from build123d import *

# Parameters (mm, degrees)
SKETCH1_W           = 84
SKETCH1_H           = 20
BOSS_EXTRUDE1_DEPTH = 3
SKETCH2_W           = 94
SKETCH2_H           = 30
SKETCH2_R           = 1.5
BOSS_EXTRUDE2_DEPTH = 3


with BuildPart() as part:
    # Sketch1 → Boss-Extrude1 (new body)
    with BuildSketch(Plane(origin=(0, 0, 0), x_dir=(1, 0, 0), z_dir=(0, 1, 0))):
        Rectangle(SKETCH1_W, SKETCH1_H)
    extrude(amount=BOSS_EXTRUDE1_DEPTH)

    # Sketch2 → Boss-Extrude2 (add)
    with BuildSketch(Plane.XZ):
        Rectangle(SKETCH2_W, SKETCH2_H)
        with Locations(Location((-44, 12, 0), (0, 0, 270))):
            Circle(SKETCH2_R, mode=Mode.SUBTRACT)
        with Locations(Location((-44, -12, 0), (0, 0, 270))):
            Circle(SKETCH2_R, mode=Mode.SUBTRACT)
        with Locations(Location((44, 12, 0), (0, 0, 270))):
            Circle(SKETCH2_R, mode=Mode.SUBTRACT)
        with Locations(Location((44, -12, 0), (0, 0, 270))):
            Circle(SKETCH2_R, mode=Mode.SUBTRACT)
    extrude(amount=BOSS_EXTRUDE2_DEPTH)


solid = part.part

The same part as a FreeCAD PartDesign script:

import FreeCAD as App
import Part
import Sketcher
from FreeCAD import Vector
Q = App.Units.Quantity

doc = App.newDocument("Part")
body = doc.addObject("PartDesign::Body", "Body")

sketch1 = body.newObject("Sketcher::SketchObject", "Sketch")
sketch1.AttachmentSupport = (doc.getObject("XZ_Plane"), [""])
sketch1.MapMode = "FlatFace"
sketch1.addGeometry(Part.LineSegment(Vector(-42, -10, 0), Vector(-42, 10, 0)), False)
sketch1.addGeometry(Part.LineSegment(Vector(-42, 10, 0), Vector(42, 10, 0)), False)
sketch1.addGeometry(Part.LineSegment(Vector(42, 10, 0), Vector(42, -10, 0)), False)
sketch1.addGeometry(Part.LineSegment(Vector(42, -10, 0), Vector(-42, -10, 0)), False)
sketch1.addConstraint(Sketcher.Constraint("Coincident", 0, 2, 1, 1))
sketch1.addConstraint(Sketcher.Constraint("Coincident", 1, 2, 2, 1))
sketch1.addConstraint(Sketcher.Constraint("Coincident", 2, 2, 3, 1))
sketch1.addConstraint(Sketcher.Constraint("Coincident", 3, 2, 0, 1))
sketch1.addConstraint(Sketcher.Constraint("Vertical", 0))
sketch1.addConstraint(Sketcher.Constraint("Horizontal", 1))
sketch1.addConstraint(Sketcher.Constraint("Vertical", 2))
sketch1.addConstraint(Sketcher.Constraint("Horizontal", 3))
sketch1.addConstraint(Sketcher.Constraint("Symmetric", 0, 2, 2, 2, -1, 1))
sketch1.addConstraint(Sketcher.Constraint("DistanceX", 1, 1, 1, 2, Q("84 mm")))
sketch1.addConstraint(Sketcher.Constraint("DistanceY", 0, 1, 0, 2, Q("20 mm")))
pad1 = body.newObject("PartDesign::Pad", "Pad")
pad1.Profile = sketch1
pad1.Length = 3
pad1.Reversed = True

sketch2 = body.newObject("Sketcher::SketchObject", "Sketch001")
sketch2.AttachmentSupport = (doc.getObject("XZ_Plane"), [""])
sketch2.MapMode = "FlatFace"
sketch2.addGeometry(Part.LineSegment(Vector(-47, 15, 0), Vector(-47, -15, 0)), False)
sketch2.addGeometry(Part.LineSegment(Vector(-47, -15, 0), Vector(47, -15, 0)), False)
sketch2.addGeometry(Part.LineSegment(Vector(47, -15, 0), Vector(47, 15, 0)), False)
sketch2.addGeometry(Part.LineSegment(Vector(47, 15, 0), Vector(-47, 15, 0)), False)
sketch2.addGeometry(Part.Circle(Vector(-44, -12, 0), Vector(0, 0, 1), 1.5), False)
sketch2.addGeometry(Part.Circle(Vector(44, -12, 0), Vector(0, 0, 1), 1.5), False)
sketch2.addGeometry(Part.Circle(Vector(-44, 12, 0), Vector(0, 0, 1), 1.5), False)
sketch2.addGeometry(Part.Circle(Vector(44, 12, 0), Vector(0, 0, 1), 1.5), False)
sketch2.addConstraint(Sketcher.Constraint("Coincident", 0, 2, 1, 1))
sketch2.addConstraint(Sketcher.Constraint("Coincident", 1, 2, 2, 1))
sketch2.addConstraint(Sketcher.Constraint("Coincident", 2, 2, 3, 1))
sketch2.addConstraint(Sketcher.Constraint("Coincident", 3, 2, 0, 1))
sketch2.addConstraint(Sketcher.Constraint("Vertical", 0))
sketch2.addConstraint(Sketcher.Constraint("Horizontal", 1))
sketch2.addConstraint(Sketcher.Constraint("Vertical", 2))
sketch2.addConstraint(Sketcher.Constraint("Horizontal", 3))
sketch2.addConstraint(Sketcher.Constraint("Equal", 4, 5))
sketch2.addConstraint(Sketcher.Constraint("Equal", 5, 6))
sketch2.addConstraint(Sketcher.Constraint("Equal", 6, 7))
sketch2.addConstraint(Sketcher.Constraint("Symmetric", 5, 3, 6, 3, -1, 1))
sketch2.addConstraint(Sketcher.Constraint("Symmetric", 4, 3, 7, 3, -1, 1))
sketch2.addConstraint(Sketcher.Constraint("Symmetric", 0, 2, 2, 2, -1, 1))
sketch2.addConstraint(Sketcher.Constraint("Symmetric", 4, 3, 5, 3, -2))
sketch2.addConstraint(Sketcher.Constraint("Diameter", 4, Q("3 mm")))
sketch2.addConstraint(Sketcher.Constraint("DistanceX", 1, 1, 1, 2, Q("94 mm")))
sketch2.addConstraint(Sketcher.Constraint("DistanceY", 0, 2, 0, 1, Q("30 mm")))
sketch2.addConstraint(Sketcher.Constraint("DistanceX", 4, 3, -1, 1, Q("44 mm")))
sketch2.addConstraint(Sketcher.Constraint("DistanceY", 4, 3, -1, 1, Q("12 mm")))
pad2 = body.newObject("PartDesign::Pad", "Pad001")
pad2.Profile = sketch2
pad2.Length = 3

doc.recompute()
